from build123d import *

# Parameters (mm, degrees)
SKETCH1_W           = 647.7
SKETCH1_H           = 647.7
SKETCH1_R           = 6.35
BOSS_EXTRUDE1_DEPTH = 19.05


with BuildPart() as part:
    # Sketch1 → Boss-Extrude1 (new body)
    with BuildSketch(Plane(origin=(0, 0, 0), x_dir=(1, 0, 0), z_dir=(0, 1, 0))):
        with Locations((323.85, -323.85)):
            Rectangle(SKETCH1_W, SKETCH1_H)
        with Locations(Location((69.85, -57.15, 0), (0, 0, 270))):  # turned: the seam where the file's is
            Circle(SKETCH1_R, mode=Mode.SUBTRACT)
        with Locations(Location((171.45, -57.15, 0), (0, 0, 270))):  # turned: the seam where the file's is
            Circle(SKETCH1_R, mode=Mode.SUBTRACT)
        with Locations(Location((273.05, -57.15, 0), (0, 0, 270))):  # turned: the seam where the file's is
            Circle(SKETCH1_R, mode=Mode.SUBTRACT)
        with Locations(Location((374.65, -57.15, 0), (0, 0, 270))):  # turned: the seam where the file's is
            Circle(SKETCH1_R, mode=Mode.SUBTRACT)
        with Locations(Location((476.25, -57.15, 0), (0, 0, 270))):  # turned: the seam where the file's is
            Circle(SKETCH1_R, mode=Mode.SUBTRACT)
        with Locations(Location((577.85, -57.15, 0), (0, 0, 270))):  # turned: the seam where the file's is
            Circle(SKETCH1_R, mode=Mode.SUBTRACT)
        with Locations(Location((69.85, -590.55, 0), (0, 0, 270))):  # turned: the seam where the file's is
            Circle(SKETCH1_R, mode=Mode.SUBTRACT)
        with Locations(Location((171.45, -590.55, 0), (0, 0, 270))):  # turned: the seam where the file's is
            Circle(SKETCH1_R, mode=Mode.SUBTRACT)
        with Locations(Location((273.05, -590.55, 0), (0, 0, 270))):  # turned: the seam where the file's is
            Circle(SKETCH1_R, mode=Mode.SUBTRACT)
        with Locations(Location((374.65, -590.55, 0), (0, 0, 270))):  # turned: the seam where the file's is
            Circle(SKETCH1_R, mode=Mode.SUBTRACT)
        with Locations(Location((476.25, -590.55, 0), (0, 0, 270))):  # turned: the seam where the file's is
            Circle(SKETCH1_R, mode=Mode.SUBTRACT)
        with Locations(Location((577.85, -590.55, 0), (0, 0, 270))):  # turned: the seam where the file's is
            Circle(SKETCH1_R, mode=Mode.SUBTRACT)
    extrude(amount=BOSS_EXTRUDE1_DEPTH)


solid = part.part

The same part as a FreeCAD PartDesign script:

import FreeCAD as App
import Part
import Sketcher
Q = App.Units.Quantity

doc = App.newDocument("Part")
body = doc.addObject("PartDesign::Body", "Body")

# Sketch on XZ plane
sketch1 = body.newObject("Sketcher::SketchObject", "Sketch")
sketch1.AttachmentSupport = (doc.getObject("XZ_Plane"), [""])
sketch1.MapMode = "FlatFace"
sketch1.addGeometry(Part.LineSegment(App.Vector(0, 0, 0), App.Vector(0, 648, 0)), False)
sketch1.addGeometry(Part.LineSegment(App.Vector(0, 648, 0), App.Vector(648, 648, 0)), False)
sketch1.addGeometry(Part.LineSegment(App.Vector(648, 648, 0), App.Vector(648, 0, 0)), False)
sketch1.addGeometry(Part.LineSegment(App.Vector(648, 0, 0), App.Vector(0, 0, 0)), False)
sketch1.addGeometry(Part.Circle(App.Vector(70, 591, 0), App.Vector(0, 0, 1), 6), False)
sketch1.addGeometry(Part.Circle(App.Vector(171, 591, 0), App.Vector(0, 0, 1), 6), False)
sketch1.addGeometry(Part.Circle(App.Vector(273, 591, 0), App.Vector(0, 0, 1), 6), False)
sketch1.addGeometry(Part.Circle(App.Vector(375, 591, 0), App.Vector(0, 0, 1), 6), False)
sketch1.addGeometry(Part.Circle(App.Vector(476, 591, 0), App.Vector(0, 0, 1), 6), False)
sketch1.addGeometry(Part.Circle(App.Vector(578, 591, 0), App.Vector(0, 0, 1), 6), False)
sketch1.addGeometry(Part.Circle(App.Vector(70, 57, 0), App.Vector(0, 0, 1), 6), False)
sketch1.addGeometry(Part.Circle(App.Vector(171, 57, 0), App.Vector(0, 0, 1), 6), False)
sketch1.addGeometry(Part.Circle(App.Vector(273, 57, 0), App.Vector(0, 0, 1), 6), False)
sketch1.addGeometry(Part.Circle(App.Vector(375, 57, 0), App.Vector(0, 0, 1), 6), False)
sketch1.addGeometry(Part.Circle(App.Vector(476, 57, 0), App.Vector(0, 0, 1), 6), False)
sketch1.addGeometry(Part.Circle(App.Vector(578, 57, 0), App.Vector(0, 0, 1), 6), False)
sketch1.addConstraint(Sketcher.Constraint("Coincident", 0, 2, 1, 1))
sketch1.addConstraint(Sketcher.Constraint("Coincident", 1, 2, 2, 1))
sketch1.addConstraint(Sketcher.Constraint("Coincident", 2, 2, 3, 1))
sketch1.addConstraint(Sketcher.Constraint("Coincident", 3, 2, 0, 1))
sketch1.addConstraint(Sketcher.Constraint("Vertical", 0))
sketch1.addConstraint(Sketcher.Constraint("Horizontal", 1))
sketch1.addConstraint(Sketcher.Constraint("Vertical", 2))
sketch1.addConstraint(Sketcher.Constraint("Horizontal", 3))
sketch1.addConstraint(Sketcher.Constraint("Coincident", 3, 2, -1, 1))
sketch1.addConstraint(Sketcher.Constraint("Equal", 4, 5))
sketch1.addConstraint(Sketcher.Constraint("Equal", 5, 6))
sketch1.addConstraint(Sketcher.Constraint("Equal", 6, 7))
sketch1.addConstraint(Sketcher.Constraint("Equal", 7, 8))
sketch1.addConstraint(Sketcher.Constraint("Equal", 8, 9))
sketch1.addConstraint(Sketcher.Constraint("Equal", 9, 10))
sketch1.addConstraint(Sketcher.Constraint("Equal", 10, 11))
sketch1.addConstraint(Sketcher.Constraint("Equal", 11, 12))
sketch1.addConstraint(Sketcher.Constraint("Equal", 12, 13))
sketch1.addConstraint(Sketcher.Constraint("Equal", 13, 14))
sketch1.addConstraint(Sketcher.Constraint("Equal", 14, 15))
sketch1.addConstraint(Sketcher.Constraint("Horizontal", 4, 3, 5, 3))
sketch1.addConstraint(Sketcher.Constraint("Horizontal", 5, 3, 6, 3))
sketch1.addConstraint(Sketcher.Constraint("Horizontal", 6, 3, 7, 3))
sketch1.addConstraint(Sketcher.Constraint("Horizontal", 7, 3, 8, 3))
sketch1.addConstraint(Sketcher.Constraint("Horizontal", 8, 3, 9, 3))
sketch1.addConstraint(Sketcher.Constraint("Horizontal", 10, 3, 11, 3))
sketch1.addConstraint(Sketcher.Constraint("Horizontal", 11, 3, 12, 3))
sketch1.addConstraint(Sketcher.Constraint("Horizontal", 12, 3, 13, 3))
sketch1.addConstraint(Sketcher.Constraint("Horizontal", 13, 3, 14, 3))
sketch1.addConstraint(Sketcher.Constraint("Horizontal", 14, 3, 15, 3))
sketch1.addConstraint(Sketcher.Constraint("Vertical", 4, 3, 10, 3))
sketch1.addConstraint(Sketcher.Constraint("Vertical", 5, 3, 11, 3))
sketch1.addConstraint(Sketcher.Constraint("Vertical", 6, 3, 12, 3))
sketch1.addConstraint(Sketcher.Constraint("Vertical", 7, 3, 13, 3))
sketch1.addConstraint(Sketcher.Constraint("Vertical", 8, 3, 14, 3))
sketch1.addConstraint(Sketcher.Constraint("Vertical", 9, 3, 15, 3))
sketch1.addConstraint(Sketcher.Constraint("Equal", 3, 0))
sketch1.addConstraint(Sketcher.Constraint("Diameter", 4, Q("0.5 in")))
sketch1.addConstraint(Sketcher.Constraint("DistanceX", 1, 1, 1, 2, Q("25.5 in")))
sketch1.addConstraint(Sketcher.Constraint("DistanceX", 4, 3, 5, 3, Q("4 in")))
sketch1.addConstraint(Sketcher.Constraint("DistanceX", 5, 3, 6, 3, Q("4 in")))
sketch1.addConstraint(Sketcher.Constraint("DistanceX", 6, 3, 7, 3, Q("4 in")))
sketch1.addConstraint(Sketcher.Constraint("DistanceX", 7, 3, 8, 3, Q("4 in")))
sketch1.addConstraint(Sketcher.Constraint("DistanceX", 8, 3, 9, 3, Q("4 in")))
sketch1.addConstraint(Sketcher.Constraint("DistanceY", 10, 3, 4, 3, Q("21 in")))
sketch1.addConstraint(Sketcher.Constraint("DistanceX", -1, 1, 4, 3, Q("2.75 in")))
sketch1.addConstraint(Sketcher.Constraint("DistanceY", -1, 1, 4, 3, Q("23.25 in")))
pad1 = body.newObject("PartDesign::Pad", "Pad")
pad1.Profile = sketch1
pad1.Length = Q("0.75 in")
pad1.Reversed = True

doc.recompute()
